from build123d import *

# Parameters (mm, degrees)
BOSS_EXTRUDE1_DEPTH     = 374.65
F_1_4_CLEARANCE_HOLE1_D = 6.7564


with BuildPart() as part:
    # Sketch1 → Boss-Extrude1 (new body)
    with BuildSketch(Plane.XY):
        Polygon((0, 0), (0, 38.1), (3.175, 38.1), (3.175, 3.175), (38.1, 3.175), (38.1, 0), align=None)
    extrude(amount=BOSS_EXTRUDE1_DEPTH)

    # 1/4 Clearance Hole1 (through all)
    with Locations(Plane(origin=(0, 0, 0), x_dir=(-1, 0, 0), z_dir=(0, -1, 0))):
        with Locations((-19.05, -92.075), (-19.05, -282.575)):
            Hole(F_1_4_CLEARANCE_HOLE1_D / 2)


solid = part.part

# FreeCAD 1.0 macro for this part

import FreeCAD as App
import Part
import Sketcher

V = App.Vector
Q = App.Units.Quantity

doc = App.newDocument("Part")
params = doc.addObject("Spreadsheet::Sheet", "Params")
for row, (alias, value) in enumerate([
    ("sketch1_width", "1.5 in"),
    ("sketch1_width2", "1.375 in"),
    ("pad1_length", "14.75 in"),
    ("sketch2_diameter", "0.266 in"),
    ("hole_diameter", "0.266 in"),
], start=1):
    params.set(f"A{row}", alias)
    params.set(f"B{row}", "=" + value)
    params.setAlias(f"B{row}", alias)

body = doc.addObject("PartDesign::Body", "Body")

sketch1 = doc.addObject("Sketcher::SketchObject", "Sketch")
body.addObject(sketch1)
sketch1.AttachmentSupport = (doc.XY_Plane, [""])
sketch1.MapMode = "FlatFace"
sketch1.addGeometry([
    Part.LineSegment(V(0, 38.1, 0), V(0, 0, 0)),
    Part.LineSegment(V(0, 0, 0), V(38.1, 0, 0)),
    Part.LineSegment(V(38.1, 0, 0), V(38.1, 3.2, 0)),
    Part.LineSegment(V(38.1, 3.2, 0), V(3.2, 3.2, 0)),
    Part.LineSegment(V(3.2, 3.2, 0), V(3.2, 38.1, 0)),
    Part.LineSegment(V(3.2, 38.1, 0), V(0, 38.1, 0)),
], False)
sketch1.addConstraint([
    Sketcher.Constraint("Coincident", 0, 2, 1, 1),
    Sketcher.Constraint("Coincident", 1, 2, 2, 1),
    Sketcher.Constraint("Coincident", 2, 2, 3, 1),
    Sketcher.Constraint("Coincident", 3, 2, 4, 1),
    Sketcher.Constraint("Coincident", 4, 2, 5, 1),
    Sketcher.Constraint("Coincident", 5, 2, 0, 1),
    Sketcher.Constraint("Vertical", 0),
    Sketcher.Constraint("Horizontal", 1),
    Sketcher.Constraint("Vertical", 2),
    Sketcher.Constraint("Horizontal", 3),
    Sketcher.Constraint("Vertical", 4),
    Sketcher.Constraint("Horizontal", 5),
    Sketcher.Constraint("Coincident", 0, 2, -1, 1),
    Sketcher.Constraint("Equal", 1, 0),
    Sketcher.Constraint("Equal", 5, 2),
    Sketcher.Constraint("DistanceX", 1, 1, 1, 2, Q("1.5 in")),
    Sketcher.Constraint("DistanceX", 3, 2, 3, 1, Q("1.375 in")),
])
sketch1.setExpression("Constraints[15]", "Params.sketch1_width")
sketch1.setExpression("Constraints[16]", "Params.sketch1_width2")
pad1 = doc.addObject("PartDesign::Pad", "Pad")
body.addObject(pad1)
pad1.Profile = sketch1
pad1.setExpression("Length", "Params.pad1_length")

sketch2 = doc.addObject("Sketcher::SketchObject", "Sketch001")
body.addObject(sketch2)
sketch2.AttachmentSupport = (doc.XZ_Plane, [""])
sketch2.MapMode = "FlatFace"
sketch2.addGeometry([
    Part.Circle(V(19.1, 92.1, 0), V(0, 0, 1), 3.4),
    Part.Circle(V(19.1, 282.6, 0), V(0, 0, 1), 3.4),
], False)
sketch2.addConstraint([
    Sketcher.Constraint("Equal", 0, 1),
    Sketcher.Constraint("Vertical", 0, 3, 1, 3),
    Sketcher.Constraint("Diameter", 0, Q("0.266 in")),
    Sketcher.Constraint("DistanceY", 0, 3, 1, 3, Q("7.5 in")),
    Sketcher.Constraint("DistanceX", -1, 1, 0, 3, Q("0.75 in")),
    Sketcher.Constraint("DistanceY", -1, 1, 0, 3, Q("3.625 in")),
])
sketch2.setExpression("Constraints[2]", "Params.sketch2_diameter")
doc.recompute()
hole = doc.addObject("PartDesign::Hole", "Hole")
body.addObject(hole)
hole.Profile = sketch2
hole.ThreadType = "None"
hole.setExpression("Diameter", "Params.hole_diameter")
hole.DepthType = "ThroughAll"

doc.recompute()
